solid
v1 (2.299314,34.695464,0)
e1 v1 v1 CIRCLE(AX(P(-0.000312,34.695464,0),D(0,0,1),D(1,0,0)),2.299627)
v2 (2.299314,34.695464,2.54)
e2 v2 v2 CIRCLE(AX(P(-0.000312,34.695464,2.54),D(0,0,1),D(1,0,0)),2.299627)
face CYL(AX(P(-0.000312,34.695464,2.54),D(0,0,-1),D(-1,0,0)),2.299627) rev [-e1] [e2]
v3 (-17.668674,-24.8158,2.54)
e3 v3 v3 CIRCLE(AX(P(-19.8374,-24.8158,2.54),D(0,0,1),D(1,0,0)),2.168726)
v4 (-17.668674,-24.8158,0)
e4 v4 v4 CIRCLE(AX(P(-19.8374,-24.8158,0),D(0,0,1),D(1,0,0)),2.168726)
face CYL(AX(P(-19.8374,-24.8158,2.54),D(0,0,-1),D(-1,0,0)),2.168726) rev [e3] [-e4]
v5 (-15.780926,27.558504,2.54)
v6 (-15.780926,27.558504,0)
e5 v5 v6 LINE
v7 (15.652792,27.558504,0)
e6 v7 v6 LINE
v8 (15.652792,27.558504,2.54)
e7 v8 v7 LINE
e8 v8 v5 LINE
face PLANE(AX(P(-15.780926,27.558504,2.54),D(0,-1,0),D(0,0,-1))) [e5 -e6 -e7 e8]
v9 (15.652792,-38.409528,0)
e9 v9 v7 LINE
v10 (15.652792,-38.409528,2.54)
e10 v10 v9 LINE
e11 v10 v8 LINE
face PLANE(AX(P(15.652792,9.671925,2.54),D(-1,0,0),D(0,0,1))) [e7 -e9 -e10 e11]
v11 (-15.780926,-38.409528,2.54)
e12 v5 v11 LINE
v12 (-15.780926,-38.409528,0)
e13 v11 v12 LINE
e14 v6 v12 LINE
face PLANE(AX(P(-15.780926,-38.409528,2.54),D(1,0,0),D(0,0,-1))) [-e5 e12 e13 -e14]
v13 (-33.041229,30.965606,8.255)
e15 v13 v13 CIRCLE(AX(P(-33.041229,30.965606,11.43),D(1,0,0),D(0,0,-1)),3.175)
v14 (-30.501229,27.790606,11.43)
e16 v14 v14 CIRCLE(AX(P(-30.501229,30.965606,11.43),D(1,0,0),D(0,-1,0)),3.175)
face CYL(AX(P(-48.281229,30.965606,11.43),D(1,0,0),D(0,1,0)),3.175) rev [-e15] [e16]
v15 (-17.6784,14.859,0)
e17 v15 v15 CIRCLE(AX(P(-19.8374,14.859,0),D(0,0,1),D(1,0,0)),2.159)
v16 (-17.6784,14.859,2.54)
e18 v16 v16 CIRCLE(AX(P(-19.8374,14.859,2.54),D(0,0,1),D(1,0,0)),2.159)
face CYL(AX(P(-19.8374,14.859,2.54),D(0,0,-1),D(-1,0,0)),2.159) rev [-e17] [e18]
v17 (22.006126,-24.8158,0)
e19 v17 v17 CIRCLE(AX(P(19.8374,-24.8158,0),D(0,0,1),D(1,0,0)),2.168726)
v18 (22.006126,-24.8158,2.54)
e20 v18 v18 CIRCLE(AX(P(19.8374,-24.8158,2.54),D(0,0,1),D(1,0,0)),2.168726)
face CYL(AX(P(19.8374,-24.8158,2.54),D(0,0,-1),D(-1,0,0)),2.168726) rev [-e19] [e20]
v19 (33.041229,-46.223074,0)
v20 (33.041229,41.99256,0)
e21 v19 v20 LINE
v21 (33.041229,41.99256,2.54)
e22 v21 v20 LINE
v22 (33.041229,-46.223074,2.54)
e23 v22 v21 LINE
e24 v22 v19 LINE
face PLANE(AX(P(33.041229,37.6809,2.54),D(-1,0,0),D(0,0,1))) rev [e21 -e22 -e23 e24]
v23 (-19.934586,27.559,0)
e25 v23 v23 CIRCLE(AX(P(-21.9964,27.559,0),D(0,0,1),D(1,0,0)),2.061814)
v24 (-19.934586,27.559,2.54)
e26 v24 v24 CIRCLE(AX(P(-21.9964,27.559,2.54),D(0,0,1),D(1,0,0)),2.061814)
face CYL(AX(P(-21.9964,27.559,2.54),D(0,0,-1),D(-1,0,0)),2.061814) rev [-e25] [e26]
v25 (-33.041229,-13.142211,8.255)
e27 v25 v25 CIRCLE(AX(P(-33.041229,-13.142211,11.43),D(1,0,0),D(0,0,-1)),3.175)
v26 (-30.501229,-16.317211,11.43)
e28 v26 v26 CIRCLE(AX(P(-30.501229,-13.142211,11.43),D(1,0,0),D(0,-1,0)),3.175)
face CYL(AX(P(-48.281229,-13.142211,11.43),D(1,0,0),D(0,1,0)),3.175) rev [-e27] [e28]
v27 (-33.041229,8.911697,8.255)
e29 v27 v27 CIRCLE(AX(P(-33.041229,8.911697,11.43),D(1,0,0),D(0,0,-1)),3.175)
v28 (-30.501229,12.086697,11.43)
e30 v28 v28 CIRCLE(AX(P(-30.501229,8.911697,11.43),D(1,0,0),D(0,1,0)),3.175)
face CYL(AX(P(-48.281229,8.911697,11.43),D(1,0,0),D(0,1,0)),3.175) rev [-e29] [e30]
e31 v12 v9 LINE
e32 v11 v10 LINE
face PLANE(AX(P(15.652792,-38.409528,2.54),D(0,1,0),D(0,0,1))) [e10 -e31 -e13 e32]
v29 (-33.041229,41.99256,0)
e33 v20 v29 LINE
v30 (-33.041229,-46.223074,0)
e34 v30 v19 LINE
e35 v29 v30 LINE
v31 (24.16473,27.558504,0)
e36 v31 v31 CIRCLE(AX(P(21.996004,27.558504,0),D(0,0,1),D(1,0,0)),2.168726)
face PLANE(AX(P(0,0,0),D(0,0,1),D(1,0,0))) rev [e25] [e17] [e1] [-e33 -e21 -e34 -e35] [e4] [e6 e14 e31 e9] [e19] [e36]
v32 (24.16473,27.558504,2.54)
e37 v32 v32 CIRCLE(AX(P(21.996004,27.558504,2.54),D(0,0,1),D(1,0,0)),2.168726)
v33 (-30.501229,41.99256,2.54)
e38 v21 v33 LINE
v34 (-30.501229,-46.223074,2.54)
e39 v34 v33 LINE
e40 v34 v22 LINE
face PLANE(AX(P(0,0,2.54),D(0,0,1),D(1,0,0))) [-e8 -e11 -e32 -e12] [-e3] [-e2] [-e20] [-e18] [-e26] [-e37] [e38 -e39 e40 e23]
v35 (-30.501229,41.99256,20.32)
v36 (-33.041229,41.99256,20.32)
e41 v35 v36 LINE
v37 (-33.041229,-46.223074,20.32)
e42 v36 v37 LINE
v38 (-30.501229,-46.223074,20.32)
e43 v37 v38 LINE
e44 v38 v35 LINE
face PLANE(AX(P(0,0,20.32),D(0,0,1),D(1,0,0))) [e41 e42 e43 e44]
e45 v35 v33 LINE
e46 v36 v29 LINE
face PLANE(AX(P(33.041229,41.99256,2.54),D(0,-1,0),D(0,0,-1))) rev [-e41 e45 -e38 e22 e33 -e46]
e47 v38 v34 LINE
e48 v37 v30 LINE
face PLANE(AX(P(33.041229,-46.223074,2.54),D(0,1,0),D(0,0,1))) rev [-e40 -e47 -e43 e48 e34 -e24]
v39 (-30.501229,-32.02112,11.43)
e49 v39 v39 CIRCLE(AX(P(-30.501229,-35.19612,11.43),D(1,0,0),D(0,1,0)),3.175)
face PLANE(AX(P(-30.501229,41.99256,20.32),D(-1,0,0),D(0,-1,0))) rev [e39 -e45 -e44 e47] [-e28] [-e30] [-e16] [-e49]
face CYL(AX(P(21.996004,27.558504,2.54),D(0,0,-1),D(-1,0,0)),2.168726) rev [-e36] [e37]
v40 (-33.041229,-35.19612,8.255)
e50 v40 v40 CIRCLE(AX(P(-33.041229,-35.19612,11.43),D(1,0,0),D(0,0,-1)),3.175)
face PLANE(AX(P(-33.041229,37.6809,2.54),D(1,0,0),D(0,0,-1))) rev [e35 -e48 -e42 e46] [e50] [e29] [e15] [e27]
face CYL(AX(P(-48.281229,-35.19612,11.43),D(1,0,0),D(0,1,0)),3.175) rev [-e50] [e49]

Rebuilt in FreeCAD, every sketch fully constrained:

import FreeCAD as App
import Part
import Sketcher
Q = App.Units.Quantity


def add_polygon(sketch, points):
    """Adds a closed chain of lines whose ends are joined by coincident constraints."""
    first, n = sketch.GeometryCount, len(points)
    for a, b in zip(points, points[1:] + points[:1]):
        sketch.addGeometry(Part.LineSegment(App.Vector(*a, 0), App.Vector(*b, 0)), False)
    for i in range(n):
        sketch.addConstraint(Sketcher.Constraint("Coincident", first + i, 2, first + (i + 1) % n, 1))

doc = App.newDocument("Part")
body = doc.addObject("PartDesign::Body", "Body")

sketch1 = body.newObject("Sketcher::SketchObject", "Sketch")
sketch1.AttachmentSupport = (doc.getObject("XY_Plane"), [""])
sketch1.MapMode = "FlatFace"
add_polygon(sketch1, [(33.041229, -46.223074), (33.041229, 41.99256), (-33.041229, 41.99256), (-33.041229, -46.223074)])
sketch1.addGeometry(Part.Circle(App.Vector(19.8374, -24.8158, 0), App.Vector(0, 0, 1), 2.168726), False)
sketch1.addGeometry(Part.Circle(App.Vector(-19.8374, -24.8158, 0), App.Vector(0, 0, 1), 2.168726), False)
add_polygon(sketch1, [(15.652792, -38.409528), (-15.780926, -38.409528), (-15.780926, 27.558504), (15.652792, 27.558504)])
sketch1.addGeometry(Part.Circle(App.Vector(21.996004, 27.558504, 0), App.Vector(0, 0, 1), 2.168726), False)
sketch1.addGeometry(Part.Circle(App.Vector(-19.8374, 14.859, 0), App.Vector(0, 0, 1), 2.159), False)
sketch1.addGeometry(Part.Circle(App.Vector(-0.000312, 34.695464, 0), App.Vector(0, 0, 1), 2.299627), False)
sketch1.addGeometry(Part.Circle(App.Vector(-21.9964, 27.559, 0), App.Vector(0, 0, 1), 2.061814), False)
sketch1.addConstraint([
    Sketcher.Constraint("Vertical", 0),
    Sketcher.Constraint("Horizontal", 1),
    Sketcher.Constraint("Vertical", 2),
    Sketcher.Constraint("Horizontal", 3),
    Sketcher.Constraint("Horizontal", 6),
    Sketcher.Constraint("Vertical", 7),
    Sketcher.Constraint("Horizontal", 8),
    Sketcher.Constraint("Vertical", 9),
    Sketcher.Constraint("Equal", 4, 5),
    Sketcher.Constraint("Equal", 5, 10),
    Sketcher.Constraint("Symmetric", 4, 3, 5, 3, -2),
    Sketcher.Constraint("Horizontal", 10, 3, 7, 2),
    Sketcher.Constraint("Vertical", 5, 3, 11, 3),
    Sketcher.Constraint("Diameter", 11, Q("0.17 in")),
    Sketcher.Constraint("DistanceY", 11, 3, 13, 3, Q("0.5 in")),
    Sketcher.Constraint("Diameter", 4, 4.337452),
    Sketcher.Constraint("DistanceX", -1, 1, 4, 3, Q("0.781 in")),
    Sketcher.Constraint("DistanceY", 4, 3, -1, 1, Q("0.977 in")),
    Sketcher.Constraint("DistanceY", -1, 1, 11, 3, Q("0.585 in")),
    Sketcher.Constraint("DistanceX", 13, 3, -1, 1, Q("0.866 in")),
    Sketcher.Constraint("Diameter", 12, 4.599253),
    Sketcher.Constraint("Diameter", 13, 4.123627),
    Sketcher.Constraint("DistanceY", 7, 1, 7, 2, 65.968031),
    Sketcher.Constraint("DistanceX", 1, 2, 1, 1, 66.082458),
    Sketcher.Constraint("DistanceX", 6, 2, 6, 1, 31.433718),
    Sketcher.Constraint("DistanceY", 0, 1, 0, 2, 88.215634),
    Sketcher.Constraint("DistanceX", -1, 1, 0, 2, 33.041229),
    Sketcher.Constraint("DistanceY", -1, 1, 0, 2, 41.99256),
    Sketcher.Constraint("DistanceY", 10, 3, 12, 3, 7.13696),
    Sketcher.Constraint("DistanceX", 12, 3, 0, 2, 33.041541),
    Sketcher.Constraint("DistanceX", 7, 2, 10, 3, 37.776929),
    Sketcher.Constraint("DistanceX", 2, 2, 9, 2, 48.694021),
    Sketcher.Constraint("DistanceY", -1, 1, 10, 3, 27.558504),
])
pad1 = body.newObject("PartDesign::Pad", "Pad")
pad1.Profile = sketch1
pad1.Length = Q("0.1 in")

sketch2 = body.newObject("Sketcher::SketchObject", "Sketch001")
sketch2.AttachmentSupport = (doc.getObject("XY_Plane"), [""])
sketch2.MapMode = "FlatFace"
sketch2.AttachmentOffset = App.Placement(App.Vector(0, 0, 0.1 * 25.4), App.Rotation())
add_polygon(sketch2, [(-33.041229, 41.99256), (-33.041229, -46.223074), (-30.501229, -46.223074), (-30.501229, 41.99256)])
sketch2.addConstraint([
    Sketcher.Constraint("Vertical", 0),
    Sketcher.Constraint("Horizontal", 1),
    Sketcher.Constraint("Vertical", 2),
    Sketcher.Constraint("Horizontal", 3),
    Sketcher.Constraint("DistanceX", 1, 1, 1, 2, Q("0.1 in")),
    Sketcher.Constraint("DistanceY", 0, 2, 0, 1, 88.215634),
    Sketcher.Constraint("DistanceX", 0, 2, -1, 1, 33.041229),
    Sketcher.Constraint("DistanceY", -1, 1, 2, 2, 41.99256),
])
pad2 = body.newObject("PartDesign::Pad", "Pad001")
pad2.Profile = sketch2
pad2.Length = Q("0.7 in")

sketch3 = body.newObject("Sketcher::SketchObject", "Sketch002")
sketch3.AttachmentSupport = (doc.getObject("YZ_Plane"), [""])
sketch3.MapMode = "FlatFace"
sketch3.AttachmentOffset = App.Placement(App.Vector(0, 0, -30.501229), App.Rotation())
sketch3.addGeometry([
    Part.Circle(App.Vector(-35.19612, 11.43, 0), App.Vector(0, 0, 1), 3.175),
    Part.Circle(App.Vector(-13.142211, 11.43, 0), App.Vector(0, 0, 1), 3.175),
    Part.Circle(App.Vector(8.911697, 11.43, 0), App.Vector(0, 0, 1), 3.175),
    Part.Circle(App.Vector(30.965606, 11.43, 0), App.Vector(0, 0, 1), 3.175),
], False)
sketch3.addConstraint([
    Sketcher.Constraint("Equal", 0, 1),
    Sketcher.Constraint("Equal", 1, 2),
    Sketcher.Constraint("Equal", 2, 3),
    Sketcher.Constraint("Horizontal", 0, 3, 1, 3),
    Sketcher.Constraint("Horizontal", 1, 3, 2, 3),
    Sketcher.Constraint("Horizontal", 2, 3, 3, 3),
    Sketcher.Constraint("Diameter", 0, Q("0.25 in")),
    Sketcher.Constraint("DistanceY", -1, 1, 0, 3, Q("0.45 in")),
    Sketcher.Constraint("DistanceX", 0, 3, -1, 1, 35.19612),
    Sketcher.Constraint("DistanceX", 1, 3, -1, 1, 13.142211),
    Sketcher.Constraint("DistanceX", 1, 3, 2, 3, 22.053908),
    Sketcher.Constraint("DistanceX", 2, 3, 3, 3, 22.053908),
])
pocket1 = body.newObject("PartDesign::Pocket", "Pocket")
pocket1.Profile = sketch3
pocket1.Length = Q("0.7 in")

doc.recompute()
